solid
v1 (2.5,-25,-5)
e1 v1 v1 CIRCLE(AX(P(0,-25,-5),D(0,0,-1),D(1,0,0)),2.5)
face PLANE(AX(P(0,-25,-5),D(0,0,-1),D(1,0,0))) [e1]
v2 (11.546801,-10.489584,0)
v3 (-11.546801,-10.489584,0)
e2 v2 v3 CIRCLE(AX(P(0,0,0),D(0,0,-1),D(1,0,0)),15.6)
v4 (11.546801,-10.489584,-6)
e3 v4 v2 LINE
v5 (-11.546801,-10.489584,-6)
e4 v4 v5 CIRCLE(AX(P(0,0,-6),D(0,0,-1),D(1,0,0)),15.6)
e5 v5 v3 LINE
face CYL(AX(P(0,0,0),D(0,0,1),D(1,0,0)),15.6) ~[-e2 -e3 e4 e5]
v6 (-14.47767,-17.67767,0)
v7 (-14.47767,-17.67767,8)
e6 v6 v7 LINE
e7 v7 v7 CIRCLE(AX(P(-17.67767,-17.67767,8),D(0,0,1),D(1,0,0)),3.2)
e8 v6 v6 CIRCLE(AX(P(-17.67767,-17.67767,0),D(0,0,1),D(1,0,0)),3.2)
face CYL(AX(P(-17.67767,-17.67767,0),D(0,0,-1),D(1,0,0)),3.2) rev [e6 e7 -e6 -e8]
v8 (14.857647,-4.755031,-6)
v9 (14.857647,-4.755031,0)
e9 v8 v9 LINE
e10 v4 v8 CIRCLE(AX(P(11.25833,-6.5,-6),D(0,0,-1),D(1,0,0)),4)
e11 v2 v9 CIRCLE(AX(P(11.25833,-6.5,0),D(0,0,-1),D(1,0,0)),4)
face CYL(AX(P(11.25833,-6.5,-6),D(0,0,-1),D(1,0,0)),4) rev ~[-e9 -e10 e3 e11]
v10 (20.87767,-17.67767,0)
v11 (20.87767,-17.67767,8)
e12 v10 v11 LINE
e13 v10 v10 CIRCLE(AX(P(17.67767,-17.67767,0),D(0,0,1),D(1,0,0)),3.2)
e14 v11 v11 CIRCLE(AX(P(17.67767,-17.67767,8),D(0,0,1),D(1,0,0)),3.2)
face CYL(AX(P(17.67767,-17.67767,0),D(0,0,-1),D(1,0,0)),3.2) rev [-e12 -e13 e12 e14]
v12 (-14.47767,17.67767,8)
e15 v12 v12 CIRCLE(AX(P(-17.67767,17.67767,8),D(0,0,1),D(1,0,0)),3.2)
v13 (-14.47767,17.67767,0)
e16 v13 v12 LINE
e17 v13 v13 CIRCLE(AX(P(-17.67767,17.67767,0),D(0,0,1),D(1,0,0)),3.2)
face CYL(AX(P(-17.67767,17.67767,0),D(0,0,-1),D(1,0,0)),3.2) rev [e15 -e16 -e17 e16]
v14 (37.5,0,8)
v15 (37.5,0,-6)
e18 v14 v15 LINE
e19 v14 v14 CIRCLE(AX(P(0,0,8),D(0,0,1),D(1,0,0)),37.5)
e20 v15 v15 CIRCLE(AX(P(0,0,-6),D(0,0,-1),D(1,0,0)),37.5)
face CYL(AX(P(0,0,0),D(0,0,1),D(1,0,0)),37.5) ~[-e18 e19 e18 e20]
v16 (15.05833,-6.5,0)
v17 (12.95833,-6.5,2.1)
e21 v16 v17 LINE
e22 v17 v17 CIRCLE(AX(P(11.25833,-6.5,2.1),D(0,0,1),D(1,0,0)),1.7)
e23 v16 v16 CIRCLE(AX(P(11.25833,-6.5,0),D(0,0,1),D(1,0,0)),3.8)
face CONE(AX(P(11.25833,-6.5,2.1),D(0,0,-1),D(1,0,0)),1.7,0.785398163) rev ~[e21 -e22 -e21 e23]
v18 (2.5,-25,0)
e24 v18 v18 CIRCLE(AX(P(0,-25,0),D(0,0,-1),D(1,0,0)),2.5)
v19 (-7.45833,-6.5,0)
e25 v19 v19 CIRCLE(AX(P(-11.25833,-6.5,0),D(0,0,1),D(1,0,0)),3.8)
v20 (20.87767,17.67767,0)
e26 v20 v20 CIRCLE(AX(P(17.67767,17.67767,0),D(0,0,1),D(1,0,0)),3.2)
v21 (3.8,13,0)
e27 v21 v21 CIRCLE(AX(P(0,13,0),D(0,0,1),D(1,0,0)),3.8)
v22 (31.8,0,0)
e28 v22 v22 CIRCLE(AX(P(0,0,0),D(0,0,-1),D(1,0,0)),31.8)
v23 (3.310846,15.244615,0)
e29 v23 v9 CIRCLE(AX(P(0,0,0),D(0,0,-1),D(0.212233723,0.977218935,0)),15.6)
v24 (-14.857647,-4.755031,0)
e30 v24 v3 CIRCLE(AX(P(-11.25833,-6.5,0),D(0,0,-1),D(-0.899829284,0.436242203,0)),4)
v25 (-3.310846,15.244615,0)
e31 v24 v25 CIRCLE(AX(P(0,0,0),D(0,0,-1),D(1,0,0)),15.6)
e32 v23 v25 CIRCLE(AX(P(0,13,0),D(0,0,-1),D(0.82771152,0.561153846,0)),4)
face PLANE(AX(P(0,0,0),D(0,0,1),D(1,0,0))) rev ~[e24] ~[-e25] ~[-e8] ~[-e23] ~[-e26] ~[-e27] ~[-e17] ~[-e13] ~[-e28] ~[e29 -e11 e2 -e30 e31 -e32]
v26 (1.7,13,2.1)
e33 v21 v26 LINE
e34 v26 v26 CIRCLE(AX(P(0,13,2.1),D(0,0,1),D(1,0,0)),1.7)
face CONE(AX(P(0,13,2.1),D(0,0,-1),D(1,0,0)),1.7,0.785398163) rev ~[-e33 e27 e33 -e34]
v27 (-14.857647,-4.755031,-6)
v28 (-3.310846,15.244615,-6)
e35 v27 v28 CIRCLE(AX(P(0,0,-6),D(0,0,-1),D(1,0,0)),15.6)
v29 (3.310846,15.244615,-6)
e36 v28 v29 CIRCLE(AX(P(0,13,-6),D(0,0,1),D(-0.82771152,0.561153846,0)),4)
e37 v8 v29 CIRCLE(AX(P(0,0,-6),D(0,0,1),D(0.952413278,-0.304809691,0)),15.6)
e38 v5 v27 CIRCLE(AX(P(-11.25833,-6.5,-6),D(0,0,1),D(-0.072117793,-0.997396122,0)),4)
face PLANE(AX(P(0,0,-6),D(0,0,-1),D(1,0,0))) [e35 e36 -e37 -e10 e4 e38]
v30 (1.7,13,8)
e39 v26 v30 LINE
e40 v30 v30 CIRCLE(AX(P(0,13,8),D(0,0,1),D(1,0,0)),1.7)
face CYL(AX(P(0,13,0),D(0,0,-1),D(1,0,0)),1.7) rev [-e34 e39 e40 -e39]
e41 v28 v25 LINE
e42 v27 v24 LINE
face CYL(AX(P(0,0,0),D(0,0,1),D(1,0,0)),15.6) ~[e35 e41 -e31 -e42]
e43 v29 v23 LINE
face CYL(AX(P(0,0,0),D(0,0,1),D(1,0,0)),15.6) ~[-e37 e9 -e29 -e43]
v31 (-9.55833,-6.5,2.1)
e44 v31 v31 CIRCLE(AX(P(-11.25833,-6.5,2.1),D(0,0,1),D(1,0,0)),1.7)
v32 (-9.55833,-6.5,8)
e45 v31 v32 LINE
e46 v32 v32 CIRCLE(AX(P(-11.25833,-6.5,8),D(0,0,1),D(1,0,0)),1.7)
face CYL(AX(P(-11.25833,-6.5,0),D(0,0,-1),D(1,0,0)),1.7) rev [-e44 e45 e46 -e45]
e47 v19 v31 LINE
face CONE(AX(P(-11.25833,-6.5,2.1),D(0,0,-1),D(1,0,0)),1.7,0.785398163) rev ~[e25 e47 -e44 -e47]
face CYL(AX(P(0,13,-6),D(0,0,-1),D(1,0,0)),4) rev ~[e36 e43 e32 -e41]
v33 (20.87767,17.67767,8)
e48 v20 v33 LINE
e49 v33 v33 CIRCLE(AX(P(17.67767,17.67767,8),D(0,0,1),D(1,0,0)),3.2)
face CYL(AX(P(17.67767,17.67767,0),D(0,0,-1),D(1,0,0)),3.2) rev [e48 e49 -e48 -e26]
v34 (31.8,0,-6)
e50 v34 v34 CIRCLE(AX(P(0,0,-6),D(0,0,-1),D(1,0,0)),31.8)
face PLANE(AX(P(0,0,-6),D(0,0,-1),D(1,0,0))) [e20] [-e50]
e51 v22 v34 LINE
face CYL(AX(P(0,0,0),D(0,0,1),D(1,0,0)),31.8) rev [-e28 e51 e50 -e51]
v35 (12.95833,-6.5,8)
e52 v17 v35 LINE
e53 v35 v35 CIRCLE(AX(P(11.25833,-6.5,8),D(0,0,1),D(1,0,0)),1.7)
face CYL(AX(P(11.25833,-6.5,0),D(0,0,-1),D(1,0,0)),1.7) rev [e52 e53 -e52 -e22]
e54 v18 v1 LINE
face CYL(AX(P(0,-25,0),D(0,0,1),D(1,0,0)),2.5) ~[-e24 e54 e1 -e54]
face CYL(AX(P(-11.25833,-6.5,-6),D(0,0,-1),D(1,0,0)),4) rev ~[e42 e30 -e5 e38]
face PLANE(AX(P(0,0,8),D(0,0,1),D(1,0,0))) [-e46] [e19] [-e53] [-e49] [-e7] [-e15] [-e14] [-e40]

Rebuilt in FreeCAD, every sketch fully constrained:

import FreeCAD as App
import Part
import Sketcher
from FreeCAD import Vector


def edges_at(feature, points):
    """Names of the edges that pass closest to the given points."""
    edges = feature.Shape.Edges
    near = lambda p: min(range(len(edges)), key=lambda i: edges[i].distToShape(Part.Vertex(*p))[0])
    return sorted({f"Edge{near(p) + 1}" for p in points})

doc = App.newDocument("Part")
body = doc.addObject("PartDesign::Body", "Body")

# Sketch on XY plane
sketch1 = doc.addObject("Sketcher::SketchObject", "Sketch")
body.addObject(sketch1)
sketch1.AttachmentSupport = (doc.XY_Plane, [""])
sketch1.MapMode = "FlatFace"
sketch1.addGeometry([
    Part.Circle(Vector(0, 0, 0), Vector(0, 0, 1), 37.5),  # 0
    Part.Circle(Vector(-17.7, -17.7, 0), Vector(0, 0, 1), 3.2),  # 1
    Part.Circle(Vector(-11.3, -6.5, 0), Vector(0, 0, 1), 1.7),  # 2
    Part.Circle(Vector(17.7, -17.7, 0), Vector(0, 0, 1), 3.2),  # 3
    Part.Circle(Vector(11.3, -6.5, 0), Vector(0, 0, 1), 1.7),  # 4
    Part.Circle(Vector(-17.7, 17.7, 0), Vector(0, 0, 1), 3.2),  # 5
    Part.Circle(Vector(0, 13, 0), Vector(0, 0, 1), 1.7),  # 6
    Part.Circle(Vector(17.7, 17.7, 0), Vector(0, 0, 1), 3.2),  # 7
], False)
sketch1.addConstraint([
    Sketcher.Constraint("Coincident", 0, 3, -1, 1),
    Sketcher.Constraint("Equal", 1, 3),
    Sketcher.Constraint("Equal", 2, 4),
    Sketcher.Constraint("Equal", 3, 5),
    Sketcher.Constraint("Equal", 4, 6),
    Sketcher.Constraint("Equal", 5, 7),
    Sketcher.Constraint("Symmetric", 3, 3, 5, 3, -1, 1),
    Sketcher.Constraint("Symmetric", 1, 3, 7, 3, -1, 1),
    Sketcher.Constraint("Symmetric", 1, 3, 3, 3, -2),
    Sketcher.Constraint("Symmetric", 2, 3, 4, 3, -2),
    Sketcher.Constraint("PointOnObject", 6, 3, -2),
    Sketcher.Constraint("Diameter", 0, 75.0),
    Sketcher.Constraint("Diameter", 1, 6.4),
    Sketcher.Constraint("Diameter", 2, 3.4),
    Sketcher.Constraint("DistanceY", -1, 1, 6, 3, 13.0),
    Sketcher.Constraint("DistanceY", 2, 3, -1, 1, 6.5),
    Sketcher.Constraint("DistanceX", 2, 3, 3, 3, 28.936),
    Sketcher.Constraint("DistanceX", 1, 3, -1, 1, 17.67767),
    Sketcher.Constraint("DistanceY", 1, 3, -1, 1, 17.67767),
])
pad1 = doc.addObject("PartDesign::Pad", "Pad")
body.addObject(pad1)
pad1.Profile = sketch1
pad1.Length = 8

# Sketch on XY plane
sketch2 = doc.addObject("Sketcher::SketchObject", "Sketch001")
body.addObject(sketch2)
sketch2.AttachmentSupport = (doc.XY_Plane, [""])
sketch2.MapMode = "FlatFace"
sketch2.addGeometry([
    Part.Circle(Vector(0, 0, 0), Vector(0, 0, 1), 38),
    Part.Circle(Vector(0, 0, 0), Vector(0, 0, 1), 32),
], False)
sketch2.addConstraint([
    Sketcher.Constraint("Coincident", 0, 3, -1, 1),
    Sketcher.Constraint("Coincident", 1, 3, -1, 1),
    Sketcher.Constraint("Diameter", 0, 75.0),
    Sketcher.Constraint("Diameter", 1, 63.6),
])
pad2 = doc.addObject("PartDesign::Pad", "Pad001")
body.addObject(pad2)
pad2.Profile = sketch2
pad2.Length = 6
pad2.Reversed = True

# Sketch on XY plane
sketch3 = doc.addObject("Sketcher::SketchObject", "Sketch002")
body.addObject(sketch3)
sketch3.AttachmentSupport = (doc.XY_Plane, [""])
sketch3.MapMode = "FlatFace"
sketch3.addGeometry(Part.Circle(Vector(0, -25, 0), Vector(0, 0, 1), 2.5), False)
sketch3.addConstraint([
    Sketcher.Constraint("PointOnObject", 0, 3, -2),
    Sketcher.Constraint("Diameter", 0, 5.0),
    Sketcher.Constraint("DistanceY", 0, 3, -1, 1, 25.0),
])
pad3 = doc.addObject("PartDesign::Pad", "Pad002")
body.addObject(pad3)
pad3.Profile = sketch3
pad3.Length = 5
pad3.Reversed = True

# Sketch on XY plane
sketch4 = doc.addObject("Sketcher::SketchObject", "Sketch003")
body.addObject(sketch4)
sketch4.AttachmentSupport = (doc.XY_Plane, [""])
sketch4.MapMode = "FlatFace"
sketch4.addGeometry(Part.Circle(Vector(0, 0, 0), Vector(0, 0, 1), 16), False)
sketch4.addConstraint([
    Sketcher.Constraint("Coincident", 0, 3, -1, 1),
    Sketcher.Constraint("Diameter", 0, 31.2),
])
pad4 = doc.addObject("PartDesign::Pad", "Pad003")
body.addObject(pad4)
pad4.Profile = sketch4
pad4.Length = 6
pad4.Reversed = True

# Sketch on XY plane
sketch5 = doc.addObject("Sketcher::SketchObject", "Sketch004")
body.addObject(sketch5)
sketch5.AttachmentSupport = (doc.XY_Plane, [""])
sketch5.MapMode = "FlatFace"
sketch5.AttachmentOffset = App.Placement(Vector(0, 0, -6), App.Rotation())
sketch5.addGeometry([
    Part.Circle(Vector(-11.3, -6.5, 0), Vector(0, 0, 1), 4),
    Part.Circle(Vector(11.3, -6.5, 0), Vector(0, 0, 1), 4),
    Part.Circle(Vector(0, 13, 0), Vector(0, 0, 1), 4),
], False)
sketch5.addConstraint([
    Sketcher.Constraint("Equal", 0, 1),
    Sketcher.Constraint("Equal", 1, 2),
    Sketcher.Constraint("Symmetric", 0, 3, 1, 3, -2),
    Sketcher.Constraint("PointOnObject", 2, 3, -2),
    Sketcher.Constraint("Diameter", 0, 8.0),
    Sketcher.Constraint("DistanceY", -1, 1, 2, 3, 13.0),
    Sketcher.Constraint("DistanceY", 0, 3, -1, 1, 6.5),
    Sketcher.Constraint("DistanceX", 0, 3, -1, 1, 11.25833),
])
pocket1 = doc.addObject("PartDesign::Pocket", "Pocket")
body.addObject(pocket1)
pocket1.Profile = sketch5
pocket1.Length = 6
pocket1.Reversed = True
doc.recompute()

chamfer = doc.addObject("PartDesign::Chamfer", "Chamfer")
body.addObject(chamfer)
chamfer.Base = (pocket1, edges_at(pocket1, [(9.558, -6.5, 0)]))
chamfer.Size = 2.1
doc.recompute()

chamfer2 = doc.addObject("PartDesign::Chamfer", "Chamfer001")
body.addObject(chamfer2)
chamfer2.Base = (chamfer, edges_at(chamfer, [(-12.958, -6.5, 0)]))
chamfer2.Size = 2.1
doc.recompute()

chamfer3 = doc.addObject("PartDesign::Chamfer", "Chamfer002")
body.addObject(chamfer3)
chamfer3.Base = (chamfer2, edges_at(chamfer2, [(-1.7, 13, 0)]))
chamfer3.Size = 2.1

doc.recompute()
